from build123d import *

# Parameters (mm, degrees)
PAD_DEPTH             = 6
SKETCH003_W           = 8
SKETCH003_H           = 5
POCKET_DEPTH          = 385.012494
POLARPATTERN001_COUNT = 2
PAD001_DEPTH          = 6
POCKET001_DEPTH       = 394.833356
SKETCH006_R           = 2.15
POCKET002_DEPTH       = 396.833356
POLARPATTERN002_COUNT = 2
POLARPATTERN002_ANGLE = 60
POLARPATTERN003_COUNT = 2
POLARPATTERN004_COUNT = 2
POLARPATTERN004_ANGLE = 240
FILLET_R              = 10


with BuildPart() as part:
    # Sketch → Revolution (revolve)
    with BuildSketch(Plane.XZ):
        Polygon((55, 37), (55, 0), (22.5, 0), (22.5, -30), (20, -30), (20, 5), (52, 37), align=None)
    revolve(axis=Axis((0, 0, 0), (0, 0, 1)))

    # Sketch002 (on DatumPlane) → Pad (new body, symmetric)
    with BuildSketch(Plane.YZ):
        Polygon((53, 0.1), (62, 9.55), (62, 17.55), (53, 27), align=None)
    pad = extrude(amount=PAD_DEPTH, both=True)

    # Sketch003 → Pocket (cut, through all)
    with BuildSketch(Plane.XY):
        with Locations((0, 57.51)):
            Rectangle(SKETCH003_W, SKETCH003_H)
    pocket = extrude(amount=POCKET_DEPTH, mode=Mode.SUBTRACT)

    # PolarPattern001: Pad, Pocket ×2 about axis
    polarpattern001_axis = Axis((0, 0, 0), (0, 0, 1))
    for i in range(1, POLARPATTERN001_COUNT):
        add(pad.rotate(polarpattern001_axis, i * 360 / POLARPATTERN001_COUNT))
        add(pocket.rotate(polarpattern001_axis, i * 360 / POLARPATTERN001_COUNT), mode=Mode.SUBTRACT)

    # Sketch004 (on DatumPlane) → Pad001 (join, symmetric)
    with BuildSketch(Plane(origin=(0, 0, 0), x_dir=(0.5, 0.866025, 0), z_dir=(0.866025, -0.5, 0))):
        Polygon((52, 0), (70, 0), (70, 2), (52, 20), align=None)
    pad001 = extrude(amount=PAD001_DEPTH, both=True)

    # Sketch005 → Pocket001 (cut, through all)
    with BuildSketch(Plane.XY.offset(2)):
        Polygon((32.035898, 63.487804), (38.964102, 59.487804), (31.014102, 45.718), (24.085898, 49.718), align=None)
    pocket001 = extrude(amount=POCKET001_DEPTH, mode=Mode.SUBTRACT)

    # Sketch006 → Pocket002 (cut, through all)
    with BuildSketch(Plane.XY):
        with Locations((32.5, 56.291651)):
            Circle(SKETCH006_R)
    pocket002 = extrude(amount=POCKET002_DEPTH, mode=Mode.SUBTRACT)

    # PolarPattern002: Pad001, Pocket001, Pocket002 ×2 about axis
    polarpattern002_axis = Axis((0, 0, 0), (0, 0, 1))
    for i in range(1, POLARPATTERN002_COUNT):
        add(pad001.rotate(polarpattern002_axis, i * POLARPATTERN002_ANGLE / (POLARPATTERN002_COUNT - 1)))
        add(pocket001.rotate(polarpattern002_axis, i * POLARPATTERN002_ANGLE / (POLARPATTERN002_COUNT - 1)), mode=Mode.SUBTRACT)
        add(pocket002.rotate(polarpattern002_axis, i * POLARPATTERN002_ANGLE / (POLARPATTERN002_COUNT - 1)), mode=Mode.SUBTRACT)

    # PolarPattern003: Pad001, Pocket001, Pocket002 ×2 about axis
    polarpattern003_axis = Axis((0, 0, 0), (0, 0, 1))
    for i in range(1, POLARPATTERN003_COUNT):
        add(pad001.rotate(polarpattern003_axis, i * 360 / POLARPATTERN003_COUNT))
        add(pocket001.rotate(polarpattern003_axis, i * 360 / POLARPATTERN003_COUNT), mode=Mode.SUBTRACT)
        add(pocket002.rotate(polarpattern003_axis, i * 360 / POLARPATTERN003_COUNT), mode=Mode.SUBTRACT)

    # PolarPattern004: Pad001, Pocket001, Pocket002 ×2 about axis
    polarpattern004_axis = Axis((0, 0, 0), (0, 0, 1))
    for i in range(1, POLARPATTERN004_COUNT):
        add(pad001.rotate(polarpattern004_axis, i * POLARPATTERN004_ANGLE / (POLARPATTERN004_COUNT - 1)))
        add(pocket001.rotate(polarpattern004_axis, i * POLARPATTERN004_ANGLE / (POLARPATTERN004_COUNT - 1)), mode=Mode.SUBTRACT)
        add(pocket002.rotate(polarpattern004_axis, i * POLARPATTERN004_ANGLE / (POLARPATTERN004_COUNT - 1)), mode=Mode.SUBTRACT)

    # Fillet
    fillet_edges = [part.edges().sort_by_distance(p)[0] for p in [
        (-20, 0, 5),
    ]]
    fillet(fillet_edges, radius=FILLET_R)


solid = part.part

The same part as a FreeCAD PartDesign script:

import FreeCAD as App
import Part
import Sketcher
from FreeCAD import Vector
Q = App.Units.Quantity


def edges_at(feature, points):
    """Names of the edges that pass closest to the given points."""
    edges = feature.Shape.Edges
    near = lambda p: min(range(len(edges)), key=lambda i: edges[i].distToShape(Part.Vertex(*p))[0])
    return sorted({f"Edge{near(p) + 1}" for p in points})

doc = App.newDocument("Part")
body = doc.addObject("PartDesign::Body", "Body")

sketch1 = body.newObject("Sketcher::SketchObject", "Sketch")
sketch1.AttachmentSupport = (doc.getObject("XZ_Plane"), [""])
sketch1.MapMode = "FlatFace"
sketch1.addGeometry(Part.LineSegment(Vector(55, 0, 0), Vector(55, 37, 0)), False)
sketch1.addGeometry(Part.LineSegment(Vector(55, 37, 0), Vector(52, 37, 0)), False)
sketch1.addGeometry(Part.LineSegment(Vector(52, 37, 0), Vector(20, 5, 0)), False)
sketch1.addGeometry(Part.LineSegment(Vector(20, 5, 0), Vector(20, -30, 0)), False)
sketch1.addGeometry(Part.LineSegment(Vector(20, -30, 0), Vector(22.5, -30, 0)), False)
sketch1.addGeometry(Part.LineSegment(Vector(22.5, -30, 0), Vector(22.5, 0, 0)), False)
sketch1.addGeometry(Part.LineSegment(Vector(22.5, 0, 0), Vector(55, 0, 0)), False)
sketch1.addConstraint(Sketcher.Constraint("Coincident", 0, 2, 1, 1))
sketch1.addConstraint(Sketcher.Constraint("Coincident", 1, 2, 2, 1))
sketch1.addConstraint(Sketcher.Constraint("Coincident", 2, 2, 3, 1))
sketch1.addConstraint(Sketcher.Constraint("Coincident", 3, 2, 4, 1))
sketch1.addConstraint(Sketcher.Constraint("Coincident", 4, 2, 5, 1))
sketch1.addConstraint(Sketcher.Constraint("Coincident", 5, 2, 6, 1))
sketch1.addConstraint(Sketcher.Constraint("Coincident", 6, 2, 0, 1))
sketch1.addConstraint(Sketcher.Constraint("Vertical", 0))
sketch1.addConstraint(Sketcher.Constraint("Horizontal", 1))
sketch1.addConstraint(Sketcher.Constraint("Vertical", 3))
sketch1.addConstraint(Sketcher.Constraint("Horizontal", 4))
sketch1.addConstraint(Sketcher.Constraint("Vertical", 5))
sketch1.addConstraint(Sketcher.Constraint("Horizontal", 6))
sketch1.addConstraint(Sketcher.Constraint("PointOnObject", 5, 2, -1))
sketch1.addConstraint(Sketcher.Constraint("DistanceX", 1, 2, 1, 1, Q("3 mm")))
sketch1.addConstraint(Sketcher.Constraint("DistanceY", 0, 1, 0, 2, Q("37 mm")))
sketch1.addConstraint(Sketcher.Constraint("DistanceY", 3, 2, 3, 1, Q("35 mm")))
sketch1.addConstraint(Sketcher.Constraint("DistanceY", 5, 1, 5, 2, Q("30 mm")))
sketch1.addConstraint(Sketcher.Constraint("Angle", 2, Q("-135 deg")))
sketch1.addConstraint(Sketcher.Constraint("DistanceX", 4, 1, 4, 2, Q("2.5 mm")))
sketch1.addConstraint(Sketcher.Constraint("DistanceX", -1, 1, 0, 2, Q("55 mm")))
revolution = body.newObject("PartDesign::Revolution", "Revolution")
revolution.Profile = sketch1
revolution.ReferenceAxis = (sketch1, ["V_Axis"])
revolution.Angle = 360

sketch2 = body.newObject("Sketcher::SketchObject", "Sketch001")
sketch2.AttachmentSupport = (doc.getObject("YZ_Plane"), [""])
sketch2.MapMode = "FlatFace"
sketch2.addGeometry(Part.LineSegment(Vector(53, 0.1, 0), Vector(62, 9.55, 0)), False)
sketch2.addGeometry(Part.LineSegment(Vector(62, 9.55, 0), Vector(62, 17.55, 0)), False)
sketch2.addGeometry(Part.LineSegment(Vector(62, 17.55, 0), Vector(53, 27, 0)), False)
sketch2.addGeometry(Part.LineSegment(Vector(53, 27, 0), Vector(53, 0.1, 0)), False)
sketch2.addConstraint(Sketcher.Constraint("Coincident", 0, 2, 1, 1))
sketch2.addConstraint(Sketcher.Constraint("Coincident", 1, 2, 2, 1))
sketch2.addConstraint(Sketcher.Constraint("Coincident", 2, 2, 3, 1))
sketch2.addConstraint(Sketcher.Constraint("Coincident", 3, 2, 0, 1))
sketch2.addConstraint(Sketcher.Constraint("Vertical", 1))
sketch2.addConstraint(Sketcher.Constraint("Vertical", 3))
sketch2.addConstraint(Sketcher.Constraint("Equal", 0, 2))
sketch2.addConstraint(Sketcher.Constraint("DistanceY", 1, 1, 1, 2, Q("8 mm")))
sketch2.addConstraint(Sketcher.Constraint("DistanceY", 3, 2, 3, 1, Q("26.9 mm")))
sketch2.addConstraint(Sketcher.Constraint("DistanceX", -1, 1, 0, 2, Q("62 mm")))
sketch2.addConstraint(Sketcher.Constraint("DistanceX", -1, 1, 2, 2, Q("53 mm")))
sketch2.addConstraint(Sketcher.Constraint("DistanceY", -1, 1, 2, 2, Q("27 mm")))
pad1 = body.newObject("PartDesign::Pad", "Pad")
pad1.Profile = sketch2
pad1.Length = 12
pad1.Midplane = True

sketch3 = body.newObject("Sketcher::SketchObject", "Sketch002")
sketch3.AttachmentSupport = (doc.getObject("XY_Plane"), [""])
sketch3.MapMode = "FlatFace"
sketch3.addGeometry(Part.LineSegment(Vector(-4, 60.01, 0), Vector(-4, 55.01, 0)), False)
sketch3.addGeometry(Part.LineSegment(Vector(-4, 55.01, 0), Vector(4, 55.01, 0)), False)
sketch3.addGeometry(Part.LineSegment(Vector(4, 55.01, 0), Vector(4, 60.01, 0)), False)
sketch3.addGeometry(Part.LineSegment(Vector(4, 60.01, 0), Vector(-4, 60.01, 0)), False)
sketch3.addConstraint(Sketcher.Constraint("Coincident", 0, 2, 1, 1))
sketch3.addConstraint(Sketcher.Constraint("Coincident", 1, 2, 2, 1))
sketch3.addConstraint(Sketcher.Constraint("Coincident", 2, 2, 3, 1))
sketch3.addConstraint(Sketcher.Constraint("Coincident", 3, 2, 0, 1))
sketch3.addConstraint(Sketcher.Constraint("Vertical", 0))
sketch3.addConstraint(Sketcher.Constraint("Horizontal", 1))
sketch3.addConstraint(Sketcher.Constraint("Vertical", 2))
sketch3.addConstraint(Sketcher.Constraint("Horizontal", 3))
sketch3.addConstraint(Sketcher.Constraint("DistanceX", 1, 1, 1, 2, Q("8 mm")))
sketch3.addConstraint(Sketcher.Constraint("DistanceY", 0, 2, 0, 1, Q("5 mm")))
sketch3.addConstraint(Sketcher.Constraint("DistanceX", 0, 2, -1, 1, Q("4 mm")))
sketch3.addConstraint(Sketcher.Constraint("DistanceY", -1, 1, 0, 2, Q("55.01 mm")))
pocket1 = body.newObject("PartDesign::Pocket", "Pocket")
pocket1.Profile = sketch3
pocket1.Type = "ThroughAll"
pocket1.Reversed = True
doc.recompute()

polarpattern = body.newObject("PartDesign::PolarPattern", "PolarPattern")
polarpattern.Originals = [pad1, pocket1]
polarpattern.Axis = (doc.getObject("Z_Axis"), [""])
polarpattern.Angle = 360
polarpattern.Occurrences = 2
body.Tip = polarpattern

sketch4 = body.newObject("Sketcher::SketchObject", "Sketch003")
sketch4.Placement = App.Placement(Vector(0, 0, 0), App.Rotation(Vector(0.500000175, 0.866025303, 0), Vector(0, 0, 1), Vector(0.866025303, -0.500000175, 0), "ZXY"))
sketch4.addGeometry(Part.LineSegment(Vector(52, 0, 0), Vector(70, 0, 0)), False)
sketch4.addGeometry(Part.LineSegment(Vector(70, 0, 0), Vector(70, 2, 0)), False)
sketch4.addGeometry(Part.LineSegment(Vector(70, 2, 0), Vector(52, 20, 0)), False)
sketch4.addGeometry(Part.LineSegment(Vector(52, 20, 0), Vector(52, 0, 0)), False)
sketch4.addConstraint(Sketcher.Constraint("Coincident", 0, 2, 1, 1))
sketch4.addConstraint(Sketcher.Constraint("Coincident", 1, 2, 2, 1))
sketch4.addConstraint(Sketcher.Constraint("Coincident", 2, 2, 3, 1))
sketch4.addConstraint(Sketcher.Constraint("Coincident", 3, 2, 0, 1))
sketch4.addConstraint(Sketcher.Constraint("Horizontal", 0))
sketch4.addConstraint(Sketcher.Constraint("Vertical", 1))
sketch4.addConstraint(Sketcher.Constraint("Vertical", 3))
sketch4.addConstraint(Sketcher.Constraint("PointOnObject", 0, 2, -1))
sketch4.addConstraint(Sketcher.Constraint("DistanceX", 0, 1, 0, 2, Q("18 mm")))
sketch4.addConstraint(Sketcher.Constraint("DistanceY", 1, 1, 1, 2, Q("2 mm")))
sketch4.addConstraint(Sketcher.Constraint("DistanceY", 3, 2, 3, 1, Q("20 mm")))
sketch4.addConstraint(Sketcher.Constraint("DistanceX", -1, 1, 0, 2, Q("70 mm")))
pad2 = body.newObject("PartDesign::Pad", "Pad001")
pad2.Profile = sketch4
pad2.Length = 12
pad2.Midplane = True

sketch5 = body.newObject("Sketcher::SketchObject", "Sketch004")
sketch5.AttachmentSupport = (doc.getObject("XY_Plane"), [""])
sketch5.MapMode = "FlatFace"
sketch5.AttachmentOffset = App.Placement(Vector(0, 0, 2), App.Rotation())
sketch5.addGeometry(Part.LineSegment(Vector(38.964102, 59.487804, 0), Vector(32.035898, 63.487804, 0)), False)
sketch5.addGeometry(Part.LineSegment(Vector(32.035898, 63.487804, 0), Vector(24.085898, 49.718, 0)), False)
sketch5.addGeometry(Part.LineSegment(Vector(24.085898, 49.718, 0), Vector(31.014102, 45.718, 0)), False)
sketch5.addGeometry(Part.LineSegment(Vector(31.014102, 45.718, 0), Vector(38.964102, 59.487804, 0)), False)
sketch5.addConstraint(Sketcher.Constraint("Coincident", 0, 2, 1, 1))
sketch5.addConstraint(Sketcher.Constraint("Coincident", 1, 2, 2, 1))
sketch5.addConstraint(Sketcher.Constraint("Coincident", 2, 2, 3, 1))
sketch5.addConstraint(Sketcher.Constraint("Coincident", 3, 2, 0, 1))
sketch5.addConstraint(Sketcher.Constraint("Perpendicular", 0, 1))
sketch5.addConstraint(Sketcher.Constraint("Perpendicular", 1, 2))
sketch5.addConstraint(Sketcher.Constraint("Perpendicular", 2, 3))
sketch5.addConstraint(Sketcher.Constraint("Angle", 0, Q("150.000003 deg")))
sketch5.addConstraint(Sketcher.Constraint("Distance", 0, Q("8.000001 mm")))
sketch5.addConstraint(Sketcher.Constraint("Distance", 1, Q("15.9 mm")))
sketch5.addConstraint(Sketcher.Constraint("DistanceY", -1, 1, 1, 2, Q("49.718 mm")))
sketch5.addConstraint(Sketcher.Constraint("DistanceX", -1, 1, 0, 2, Q("32.035898 mm")))
pocket2 = body.newObject("PartDesign::Pocket", "Pocket001")
pocket2.Profile = sketch5
pocket2.Type = "ThroughAll"
pocket2.Reversed = True

sketch6 = body.newObject("Sketcher::SketchObject", "Sketch005")
sketch6.AttachmentSupport = (doc.getObject("XY_Plane"), [""])
sketch6.MapMode = "FlatFace"
sketch6.addGeometry(Part.Circle(Vector(32.5, 56.291651, 0), Vector(0, 0, 1), 2.15), False)
sketch6.addConstraint(Sketcher.Constraint("Diameter", 0, Q("4.3 mm")))
sketch6.addConstraint(Sketcher.Constraint("DistanceX", -1, 1, 0, 3, Q("32.5 mm")))
sketch6.addConstraint(Sketcher.Constraint("DistanceY", -1, 1, 0, 3, Q("56.291651 mm")))
pocket3 = body.newObject("PartDesign::Pocket", "Pocket002")
pocket3.Profile = sketch6
pocket3.Type = "ThroughAll"
pocket3.Reversed = True
doc.recompute()

polarpattern2 = body.newObject("PartDesign::PolarPattern", "PolarPattern001")
polarpattern2.Originals = [pad2, pocket2, pocket3]
polarpattern2.Axis = (doc.getObject("Z_Axis"), [""])
polarpattern2.Angle = 60
polarpattern2.Occurrences = 2
body.Tip = polarpattern2
doc.recompute()

polarpattern3 = body.newObject("PartDesign::PolarPattern", "PolarPattern002")
polarpattern3.Originals = [pad2, pocket2, pocket3]
polarpattern3.Axis = (doc.getObject("Z_Axis"), [""])
polarpattern3.Angle = 360
polarpattern3.Occurrences = 2
body.Tip = polarpattern3
doc.recompute()

polarpattern4 = body.newObject("PartDesign::PolarPattern", "PolarPattern003")
polarpattern4.Originals = [pad2, pocket2, pocket3]
polarpattern4.Axis = (doc.getObject("Z_Axis"), [""])
polarpattern4.Angle = 240
polarpattern4.Occurrences = 2
body.Tip = polarpattern4
doc.recompute()

fillet = body.newObject("PartDesign::Fillet", "Fillet")
fillet.Base = (polarpattern4, edges_at(polarpattern4, [(-20, 0, 5)]))
fillet.Radius = 10

doc.recompute()
